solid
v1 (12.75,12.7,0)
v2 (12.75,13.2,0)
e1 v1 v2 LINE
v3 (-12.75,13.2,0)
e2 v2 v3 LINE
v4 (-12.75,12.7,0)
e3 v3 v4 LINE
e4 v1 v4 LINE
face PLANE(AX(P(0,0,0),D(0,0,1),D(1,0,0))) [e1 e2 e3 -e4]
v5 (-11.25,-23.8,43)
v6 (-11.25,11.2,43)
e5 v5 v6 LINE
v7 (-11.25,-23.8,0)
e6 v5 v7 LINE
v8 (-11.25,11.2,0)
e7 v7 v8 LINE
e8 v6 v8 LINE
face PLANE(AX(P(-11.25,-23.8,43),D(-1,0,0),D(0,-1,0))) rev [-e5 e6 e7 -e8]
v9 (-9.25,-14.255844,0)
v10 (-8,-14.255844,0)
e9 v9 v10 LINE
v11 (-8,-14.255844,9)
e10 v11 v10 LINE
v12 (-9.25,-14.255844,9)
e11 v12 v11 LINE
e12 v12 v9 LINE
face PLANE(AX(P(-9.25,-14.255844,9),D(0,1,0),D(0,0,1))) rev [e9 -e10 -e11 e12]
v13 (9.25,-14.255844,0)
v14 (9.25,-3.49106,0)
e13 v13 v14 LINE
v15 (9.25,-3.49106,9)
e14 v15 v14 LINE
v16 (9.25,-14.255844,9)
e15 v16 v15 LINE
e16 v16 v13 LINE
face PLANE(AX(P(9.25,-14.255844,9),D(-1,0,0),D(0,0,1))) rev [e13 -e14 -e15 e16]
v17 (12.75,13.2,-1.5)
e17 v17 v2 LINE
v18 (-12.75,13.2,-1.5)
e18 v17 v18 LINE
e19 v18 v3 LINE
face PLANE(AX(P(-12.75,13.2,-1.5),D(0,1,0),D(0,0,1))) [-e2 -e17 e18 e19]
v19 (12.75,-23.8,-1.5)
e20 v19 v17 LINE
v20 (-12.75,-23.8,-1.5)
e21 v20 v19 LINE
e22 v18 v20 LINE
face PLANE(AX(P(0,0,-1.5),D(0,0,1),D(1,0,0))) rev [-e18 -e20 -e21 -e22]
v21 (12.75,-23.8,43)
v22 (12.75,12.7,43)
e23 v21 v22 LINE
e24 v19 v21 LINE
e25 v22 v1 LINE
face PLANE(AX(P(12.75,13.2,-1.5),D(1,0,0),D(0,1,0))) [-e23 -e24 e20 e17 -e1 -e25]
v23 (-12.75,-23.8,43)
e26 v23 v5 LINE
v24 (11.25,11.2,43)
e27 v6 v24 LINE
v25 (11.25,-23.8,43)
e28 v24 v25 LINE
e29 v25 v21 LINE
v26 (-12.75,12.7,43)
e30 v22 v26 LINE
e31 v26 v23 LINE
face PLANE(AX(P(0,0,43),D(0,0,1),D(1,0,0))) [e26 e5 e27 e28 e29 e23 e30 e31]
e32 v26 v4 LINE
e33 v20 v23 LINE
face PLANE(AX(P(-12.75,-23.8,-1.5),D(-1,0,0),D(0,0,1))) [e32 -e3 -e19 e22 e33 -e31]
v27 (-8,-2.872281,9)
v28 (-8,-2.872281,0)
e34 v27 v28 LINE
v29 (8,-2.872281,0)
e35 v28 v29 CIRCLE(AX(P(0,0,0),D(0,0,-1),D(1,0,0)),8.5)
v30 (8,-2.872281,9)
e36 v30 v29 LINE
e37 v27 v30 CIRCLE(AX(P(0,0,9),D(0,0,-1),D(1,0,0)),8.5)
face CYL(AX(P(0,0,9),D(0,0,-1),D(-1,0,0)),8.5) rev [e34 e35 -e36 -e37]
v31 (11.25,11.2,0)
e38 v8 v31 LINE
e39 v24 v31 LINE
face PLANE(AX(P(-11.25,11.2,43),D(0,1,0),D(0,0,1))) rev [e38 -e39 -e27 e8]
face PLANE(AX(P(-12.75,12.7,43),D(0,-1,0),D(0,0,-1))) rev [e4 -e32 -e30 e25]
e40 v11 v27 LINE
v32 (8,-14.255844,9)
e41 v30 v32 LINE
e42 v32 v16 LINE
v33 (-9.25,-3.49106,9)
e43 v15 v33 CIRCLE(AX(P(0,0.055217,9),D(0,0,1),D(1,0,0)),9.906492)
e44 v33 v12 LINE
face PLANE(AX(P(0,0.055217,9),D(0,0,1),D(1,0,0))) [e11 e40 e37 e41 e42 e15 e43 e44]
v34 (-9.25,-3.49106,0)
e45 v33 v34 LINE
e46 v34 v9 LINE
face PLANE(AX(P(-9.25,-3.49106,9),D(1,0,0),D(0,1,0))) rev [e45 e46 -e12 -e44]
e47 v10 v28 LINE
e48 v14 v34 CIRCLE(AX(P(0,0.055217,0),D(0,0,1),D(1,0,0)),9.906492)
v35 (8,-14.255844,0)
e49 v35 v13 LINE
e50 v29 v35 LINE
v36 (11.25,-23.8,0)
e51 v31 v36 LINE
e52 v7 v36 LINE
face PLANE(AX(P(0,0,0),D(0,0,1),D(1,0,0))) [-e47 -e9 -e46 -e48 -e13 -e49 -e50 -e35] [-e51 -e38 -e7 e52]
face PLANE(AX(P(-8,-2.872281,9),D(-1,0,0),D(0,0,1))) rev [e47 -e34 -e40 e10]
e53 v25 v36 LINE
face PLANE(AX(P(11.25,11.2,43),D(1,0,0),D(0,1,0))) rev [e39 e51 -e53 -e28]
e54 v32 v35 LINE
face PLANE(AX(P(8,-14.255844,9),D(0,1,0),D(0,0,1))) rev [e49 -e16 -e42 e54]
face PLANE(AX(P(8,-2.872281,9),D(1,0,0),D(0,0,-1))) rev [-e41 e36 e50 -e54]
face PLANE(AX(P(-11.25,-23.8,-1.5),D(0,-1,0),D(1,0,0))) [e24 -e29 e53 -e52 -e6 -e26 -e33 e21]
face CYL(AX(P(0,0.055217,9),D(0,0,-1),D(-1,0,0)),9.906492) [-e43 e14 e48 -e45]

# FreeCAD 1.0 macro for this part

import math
import FreeCAD as App
import Part
import Sketcher
Q = App.Units.Quantity

doc = App.newDocument("Part")
body = doc.addObject("PartDesign::Body", "Body")

sketch1 = doc.addObject("Sketcher::SketchObject", "Sketch")
body.addObject(sketch1)
sketch1.AttachmentSupport = (doc.XY_Plane, [""])
sketch1.MapMode = "FlatFace"
sketch1.addGeometry(Part.LineSegment(App.Vector(8, -2.9, 0), App.Vector(8, -14.3, 0)), False)
sketch1.addGeometry(Part.LineSegment(App.Vector(8, -14.3, 0), App.Vector(9.2, -14.3, 0)), False)
sketch1.addGeometry(Part.LineSegment(App.Vector(9.2, -14.3, 0), App.Vector(9.2, -3.5, 0)), False)
sketch1.addGeometry(Part.ArcOfCircle(Part.Circle(App.Vector(0, 0.1, 0), App.Vector(0, 0, 1), 9.9), math.radians(-21), math.radians(201)), False)
sketch1.addGeometry(Part.LineSegment(App.Vector(-9.2, -3.5, 0), App.Vector(-9.2, -14.3, 0)), False)
sketch1.addGeometry(Part.LineSegment(App.Vector(-9.2, -14.3, 0), App.Vector(-8, -14.3, 0)), False)
sketch1.addGeometry(Part.LineSegment(App.Vector(-8, -14.3, 0), App.Vector(-8, -2.9, 0)), False)
sketch1.addGeometry(Part.ArcOfCircle(Part.Circle(App.Vector(0, 0, 0), App.Vector(0, 0, 1), 8.5), math.radians(-20), math.radians(200)), False)
sketch1.addConstraint(Sketcher.Constraint("Coincident", 0, 2, 1, 1))
sketch1.addConstraint(Sketcher.Constraint("Coincident", 1, 2, 2, 1))
sketch1.addConstraint(Sketcher.Constraint("Coincident", 2, 2, 3, 1))
sketch1.addConstraint(Sketcher.Constraint("Coincident", 3, 2, 4, 1))
sketch1.addConstraint(Sketcher.Constraint("Coincident", 4, 2, 5, 1))
sketch1.addConstraint(Sketcher.Constraint("Coincident", 5, 2, 6, 1))
sketch1.addConstraint(Sketcher.Constraint("Coincident", 6, 2, 7, 2))
sketch1.addConstraint(Sketcher.Constraint("Coincident", 7, 1, 0, 1))
sketch1.addConstraint(Sketcher.Constraint("Vertical", 0))
sketch1.addConstraint(Sketcher.Constraint("Horizontal", 1))
sketch1.addConstraint(Sketcher.Constraint("Vertical", 2))
sketch1.addConstraint(Sketcher.Constraint("Vertical", 4))
sketch1.addConstraint(Sketcher.Constraint("Horizontal", 5))
sketch1.addConstraint(Sketcher.Constraint("Vertical", 6))
sketch1.addConstraint(Sketcher.Constraint("Coincident", 7, 3, -1, 1))
sketch1.addConstraint(Sketcher.Constraint("Symmetric", 2, 2, 3, 2, -2))
sketch1.addConstraint(Sketcher.Constraint("Symmetric", 0, 2, 5, 2, -2))
sketch1.addConstraint(Sketcher.Constraint("Radius", 7, Q("8.5 mm")))
sketch1.addConstraint(Sketcher.Constraint("DistanceX", -1, 1, 0, 2, Q("8 mm")))
sketch1.addConstraint(Sketcher.Constraint("DistanceX", 1, 1, 1, 2, Q("1.25 mm")))
sketch1.addConstraint(Sketcher.Constraint("Radius", 3, Q("9.906492 mm")))
sketch1.addConstraint(Sketcher.Constraint("DistanceY", 6, 2, 3, 3, Q("2.927499 mm")))
sketch1.addConstraint(Sketcher.Constraint("DistanceY", 0, 2, 0, 1, Q("11.383562 mm")))
pad1 = doc.addObject("PartDesign::Pad", "Pad")
body.addObject(pad1)
pad1.Profile = sketch1
pad1.Length = 9

sketch2 = doc.addObject("Sketcher::SketchObject", "Sketch001")
body.addObject(sketch2)
sketch2.AttachmentSupport = (doc.XY_Plane, [""])
sketch2.MapMode = "FlatFace"
sketch2.addGeometry(Part.LineSegment(App.Vector(-11, 11, 0), App.Vector(-11, -24, 0)), False)
sketch2.addGeometry(Part.LineSegment(App.Vector(-11, -24, 0), App.Vector(11, -24, 0)), False)
sketch2.addGeometry(Part.LineSegment(App.Vector(11, -24, 0), App.Vector(11, 11, 0)), False)
sketch2.addGeometry(Part.LineSegment(App.Vector(11, 11, 0), App.Vector(-11, 11, 0)), False)
sketch2.addConstraint(Sketcher.Constraint("Coincident", 0, 2, 1, 1))
sketch2.addConstraint(Sketcher.Constraint("Coincident", 1, 2, 2, 1))
sketch2.addConstraint(Sketcher.Constraint("Coincident", 2, 2, 3, 1))
sketch2.addConstraint(Sketcher.Constraint("Coincident", 3, 2, 0, 1))
sketch2.addConstraint(Sketcher.Constraint("Vertical", 0))
sketch2.addConstraint(Sketcher.Constraint("Horizontal", 1))
sketch2.addConstraint(Sketcher.Constraint("Vertical", 2))
sketch2.addConstraint(Sketcher.Constraint("Horizontal", 3))
sketch2.addConstraint(Sketcher.Constraint("DistanceY", 0, 2, 0, 1, Q("35 mm")))
sketch2.addConstraint(Sketcher.Constraint("DistanceX", 1, 1, 1, 2, Q("22.5 mm")))
sketch2.addConstraint(Sketcher.Constraint("DistanceY", 0, 2, -1, 1, Q("23.8 mm")))
sketch2.addConstraint(Sketcher.Constraint("DistanceX", 0, 2, -1, 1, Q("11.25 mm")))
pad2 = doc.addObject("PartDesign::Pad", "Pad001")
body.addObject(pad2)
pad2.Profile = sketch2
pad2.Length = 1.5
pad2.Reversed = True
body2 = doc.addObject("PartDesign::Body", "Body001")

sketch3 = doc.addObject("Sketcher::SketchObject", "Sketch002")
body2.addObject(sketch3)
sketch3.AttachmentSupport = (doc.getObject("XY_Plane001"), [""])
sketch3.MapMode = "FlatFace"
sketch3.addGeometry(Part.LineSegment(App.Vector(12.8, 12.7, 0), App.Vector(-12.8, 12.7, 0)), False)
sketch3.addGeometry(Part.LineSegment(App.Vector(-12.8, 12.7, 0), App.Vector(-12.8, -23.8, 0)), False)
sketch3.addGeometry(Part.LineSegment(App.Vector(-12.8, -23.8, 0), App.Vector(-11.2, -23.8, 0)), False)
sketch3.addGeometry(Part.LineSegment(App.Vector(-11.2, -23.8, 0), App.Vector(-11.2, 11.2, 0)), False)
sketch3.addGeometry(Part.LineSegment(App.Vector(-11.2, 11.2, 0), App.Vector(11.2, 11.2, 0)), False)
sketch3.addGeometry(Part.LineSegment(App.Vector(11.2, 11.2, 0), App.Vector(11.2, -23.8, 0)), False)
sketch3.addGeometry(Part.LineSegment(App.Vector(11.2, -23.8, 0), App.Vector(12.8, -23.8, 0)), False)
sketch3.addGeometry(Part.LineSegment(App.Vector(12.8, -23.8, 0), App.Vector(12.8, 12.7, 0)), False)
sketch3.addConstraint(Sketcher.Constraint("Coincident", 0, 2, 1, 1))
sketch3.addConstraint(Sketcher.Constraint("Coincident", 1, 2, 2, 1))
sketch3.addConstraint(Sketcher.Constraint("Coincident", 2, 2, 3, 1))
sketch3.addConstraint(Sketcher.Constraint("Coincident", 3, 2, 4, 1))
sketch3.addConstraint(Sketcher.Constraint("Coincident", 4, 2, 5, 1))
sketch3.addConstraint(Sketcher.Constraint("Coincident", 5, 2, 6, 1))
sketch3.addConstraint(Sketcher.Constraint("Coincident", 6, 2, 7, 1))
sketch3.addConstraint(Sketcher.Constraint("Coincident", 7, 2, 0, 1))
sketch3.addConstraint(Sketcher.Constraint("Horizontal", 0))
sketch3.addConstraint(Sketcher.Constraint("Vertical", 1))
sketch3.addConstraint(Sketcher.Constraint("Horizontal", 2))
sketch3.addConstraint(Sketcher.Constraint("Vertical", 3))
sketch3.addConstraint(Sketcher.Constraint("Horizontal", 4))
sketch3.addConstraint(Sketcher.Constraint("Vertical", 5))
sketch3.addConstraint(Sketcher.Constraint("Horizontal", 6))
sketch3.addConstraint(Sketcher.Constraint("Vertical", 7))
sketch3.addConstraint(Sketcher.Constraint("Symmetric", 2, 2, 5, 2, -2))
sketch3.addConstraint(Sketcher.Constraint("Equal", 2, 6))
sketch3.addConstraint(Sketcher.Constraint("DistanceY", 3, 1, 3, 2, Q("35 mm")))
sketch3.addConstraint(Sketcher.Constraint("DistanceX", 0, 2, 0, 1, Q("25.5 mm")))
sketch3.addConstraint(Sketcher.Constraint("DistanceX", 2, 1, 2, 2, Q("1.5 mm")))
sketch3.addConstraint(Sketcher.Constraint("DistanceY", 1, 2, 1, 1, Q("36.5 mm")))
sketch3.addConstraint(Sketcher.Constraint("DistanceY", -1, 1, 0, 2, Q("12.7 mm")))
pad3 = doc.addObject("PartDesign::Pad", "Pad002")
body2.addObject(pad3)
pad3.Profile = sketch3
pad3.Length = 43
body.AllowCompound = True
doc.recompute()

boolean = doc.addObject("PartDesign::Boolean", "Boolean")
body.addObject(boolean)
boolean.Type = "Fuse"
boolean.addObjects([body2])

sketch4 = doc.addObject("Sketcher::SketchObject", "Sketch003")
body.addObject(sketch4)
sketch4.AttachmentSupport = (doc.XY_Plane, [""])
sketch4.MapMode = "FlatFace"
sketch4.addGeometry(Part.LineSegment(App.Vector(12.8, 13.2, 0), App.Vector(-12.8, 13.2, 0)), False)
sketch4.addGeometry(Part.LineSegment(App.Vector(-12.8, 13.2, 0), App.Vector(-12.8, -23.8, 0)), False)
sketch4.addGeometry(Part.LineSegment(App.Vector(-12.8, -23.8, 0), App.Vector(-11.2, -23.8, 0)), False)
sketch4.addGeometry(Part.LineSegment(App.Vector(-11.2, -23.8, 0), App.Vector(-11.2, 11.2, 0)), False)
sketch4.addGeometry(Part.LineSegment(App.Vector(-11.2, 11.2, 0), App.Vector(11.2, 11.2, 0)), False)
sketch4.addGeometry(Part.LineSegment(App.Vector(11.2, 11.2, 0), App.Vector(11.2, -23.8, 0)), False)
sketch4.addGeometry(Part.LineSegment(App.Vector(11.2, -23.8, 0), App.Vector(12.8, -23.8, 0)), False)
sketch4.addGeometry(Part.LineSegment(App.Vector(12.8, -23.8, 0), App.Vector(12.8, 13.2, 0)), False)
sketch4.addConstraint(Sketcher.Constraint("Coincident", 0, 2, 1, 1))
sketch4.addConstraint(Sketcher.Constraint("Coincident", 1, 2, 2, 1))
sketch4.addConstraint(Sketcher.Constraint("Coincident", 2, 2, 3, 1))
sketch4.addConstraint(Sketcher.Constraint("Coincident", 3, 2, 4, 1))
sketch4.addConstraint(Sketcher.Constraint("Coincident", 4, 2, 5, 1))
sketch4.addConstraint(Sketcher.Constraint("Coincident", 5, 2, 6, 1))
sketch4.addConstraint(Sketcher.Constraint("Coincident", 6, 2, 7, 1))
sketch4.addConstraint(Sketcher.Constraint("Coincident", 7, 2, 0, 1))
sketch4.addConstraint(Sketcher.Constraint("Horizontal", 0))
sketch4.addConstraint(Sketcher.Constraint("Vertical", 1))
sketch4.addConstraint(Sketcher.Constraint("Horizontal", 2))
sketch4.addConstraint(Sketcher.Constraint("Vertical", 3))
sketch4.addConstraint(Sketcher.Constraint("Horizontal", 4))
sketch4.addConstraint(Sketcher.Constraint("Vertical", 5))
sketch4.addConstraint(Sketcher.Constraint("Horizontal", 6))
sketch4.addConstraint(Sketcher.Constraint("Vertical", 7))
sketch4.addConstraint(Sketcher.Constraint("Symmetric", 2, 2, 5, 2, -2))
sketch4.addConstraint(Sketcher.Constraint("Equal", 2, 6))
sketch4.addConstraint(Sketcher.Constraint("DistanceY", 1, 2, 1, 1, Q("37 mm")))
sketch4.addConstraint(Sketcher.Constraint("DistanceY", 3, 1, 3, 2, Q("35 mm")))
sketch4.addConstraint(Sketcher.Constraint("DistanceX", 0, 2, 0, 1, Q("25.5 mm")))
sketch4.addConstraint(Sketcher.Constraint("DistanceX", 2, 1, 2, 2, Q("1.5 mm")))
sketch4.addConstraint(Sketcher.Constraint("DistanceY", -1, 1, 0, 2, Q("13.2 mm")))
pad4 = doc.addObject("PartDesign::Pad", "Pad003")
body.addObject(pad4)
pad4.Profile = sketch4
pad4.Length = 1.5
pad4.Reversed = True

doc.recompute()
